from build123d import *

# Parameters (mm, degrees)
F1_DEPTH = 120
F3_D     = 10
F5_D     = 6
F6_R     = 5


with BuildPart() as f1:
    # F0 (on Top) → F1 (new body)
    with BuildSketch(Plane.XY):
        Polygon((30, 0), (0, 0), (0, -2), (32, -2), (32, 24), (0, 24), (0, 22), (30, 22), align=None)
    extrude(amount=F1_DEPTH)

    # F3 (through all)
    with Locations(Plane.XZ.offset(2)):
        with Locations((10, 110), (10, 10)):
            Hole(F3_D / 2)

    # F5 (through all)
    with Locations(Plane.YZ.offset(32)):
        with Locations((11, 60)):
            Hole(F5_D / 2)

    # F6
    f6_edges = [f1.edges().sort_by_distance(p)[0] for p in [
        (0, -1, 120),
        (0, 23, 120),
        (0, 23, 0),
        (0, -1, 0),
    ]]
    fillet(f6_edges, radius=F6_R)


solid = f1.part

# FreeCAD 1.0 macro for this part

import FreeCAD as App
import Part
import Sketcher
from FreeCAD import Vector


def edges_at(feature, points):
    """Names of the edges that pass closest to the given points."""
    edges = feature.Shape.Edges
    near = lambda p: min(range(len(edges)), key=lambda i: edges[i].distToShape(Part.Vertex(*p))[0])
    return sorted({f"Edge{near(p) + 1}" for p in points})

doc = App.newDocument("Part")
body = doc.addObject("PartDesign::Body", "Body")

# Sketch on XY plane
sketch1 = body.newObject("Sketcher::SketchObject", "Sketch")
sketch1.AttachmentSupport = (doc.getObject("XY_Plane"), [""])
sketch1.MapMode = "FlatFace"
sketch1.addGeometry(Part.LineSegment(Vector(30, 0, 0), Vector(0, 0, 0)), False)
sketch1.addGeometry(Part.LineSegment(Vector(0, 0, 0), Vector(0, -2, 0)), False)
sketch1.addGeometry(Part.LineSegment(Vector(0, -2, 0), Vector(32, -2, 0)), False)
sketch1.addGeometry(Part.LineSegment(Vector(32, -2, 0), Vector(32, 24, 0)), False)
sketch1.addGeometry(Part.LineSegment(Vector(32, 24, 0), Vector(0, 24, 0)), False)
sketch1.addGeometry(Part.LineSegment(Vector(0, 24, 0), Vector(0, 22, 0)), False)
sketch1.addGeometry(Part.LineSegment(Vector(0, 22, 0), Vector(30, 22, 0)), False)
sketch1.addGeometry(Part.LineSegment(Vector(30, 22, 0), Vector(30, 0, 0)), False)
sketch1.addConstraint(Sketcher.Constraint("Coincident", 0, 2, 1, 1))
sketch1.addConstraint(Sketcher.Constraint("Coincident", 1, 2, 2, 1))
sketch1.addConstraint(Sketcher.Constraint("Coincident", 2, 2, 3, 1))
sketch1.addConstraint(Sketcher.Constraint("Coincident", 3, 2, 4, 1))
sketch1.addConstraint(Sketcher.Constraint("Coincident", 4, 2, 5, 1))
sketch1.addConstraint(Sketcher.Constraint("Coincident", 5, 2, 6, 1))
sketch1.addConstraint(Sketcher.Constraint("Coincident", 6, 2, 7, 1))
sketch1.addConstraint(Sketcher.Constraint("Coincident", 7, 2, 0, 1))
sketch1.addConstraint(Sketcher.Constraint("Horizontal", 0))
sketch1.addConstraint(Sketcher.Constraint("Vertical", 1))
sketch1.addConstraint(Sketcher.Constraint("Horizontal", 2))
sketch1.addConstraint(Sketcher.Constraint("Vertical", 3))
sketch1.addConstraint(Sketcher.Constraint("Horizontal", 4))
sketch1.addConstraint(Sketcher.Constraint("Vertical", 5))
sketch1.addConstraint(Sketcher.Constraint("Horizontal", 6))
sketch1.addConstraint(Sketcher.Constraint("Vertical", 7))
sketch1.addConstraint(Sketcher.Constraint("Coincident", 0, 2, -1, 1))
sketch1.addConstraint(Sketcher.Constraint("PointOnObject", 4, 2, -2))
sketch1.addConstraint(Sketcher.Constraint("Equal", 1, 5))
sketch1.addConstraint(Sketcher.Constraint("DistanceX", 0, 2, 0, 1, 30.0))
sketch1.addConstraint(Sketcher.Constraint("DistanceX", 2, 1, 2, 2, 32.0))
sketch1.addConstraint(Sketcher.Constraint("DistanceY", 1, 2, 1, 1, 2.0))
sketch1.addConstraint(Sketcher.Constraint("DistanceY", 3, 1, 3, 2, 26.0))
pad1 = body.newObject("PartDesign::Pad", "Pad")
pad1.Profile = sketch1
pad1.Length = 120

# Sketch on XZ plane
sketch2 = body.newObject("Sketcher::SketchObject", "Sketch001")
sketch2.AttachmentSupport = (doc.getObject("XZ_Plane"), [""])
sketch2.MapMode = "FlatFace"
sketch2.AttachmentOffset = App.Placement(Vector(0, 0, 2), App.Rotation())
sketch2.addGeometry(Part.Circle(Vector(10, 110, 0), Vector(0, 0, 1), 5), False)
sketch2.addGeometry(Part.Circle(Vector(10, 10, 0), Vector(0, 0, 1), 5), False)
sketch2.addConstraint(Sketcher.Constraint("Equal", 0, 1))
sketch2.addConstraint(Sketcher.Constraint("Vertical", 0, 3, 1, 3))
sketch2.addConstraint(Sketcher.Constraint("Diameter", 0, 10.0))
sketch2.addConstraint(Sketcher.Constraint("DistanceX", -1, 1, 0, 3, 10.0))
sketch2.addConstraint(Sketcher.Constraint("DistanceY", -1, 1, 0, 3, 110.0))
sketch2.addConstraint(Sketcher.Constraint("DistanceY", -1, 1, 1, 3, 10.0))
doc.recompute()
hole = body.newObject("PartDesign::Hole", "Hole")
hole.Profile = sketch2
hole.ThreadType = "None"
hole.Diameter = 10
hole.DepthType = "ThroughAll"

# Sketch on YZ plane
sketch3 = body.newObject("Sketcher::SketchObject", "Sketch002")
sketch3.AttachmentSupport = (doc.getObject("YZ_Plane"), [""])
sketch3.MapMode = "FlatFace"
sketch3.AttachmentOffset = App.Placement(Vector(0, 0, 32), App.Rotation())
sketch3.addGeometry(Part.Circle(Vector(11, 60, 0), Vector(0, 0, 1), 3), False)
sketch3.addConstraint(Sketcher.Constraint("Diameter", 0, 6.0))
sketch3.addConstraint(Sketcher.Constraint("DistanceX", -1, 1, 0, 3, 11.0))
sketch3.addConstraint(Sketcher.Constraint("DistanceY", -1, 1, 0, 3, 60.0))
doc.recompute()
hole2 = body.newObject("PartDesign::Hole", "Hole001")
hole2.Profile = sketch3
hole2.ThreadType = "None"
hole2.Diameter = 6
hole2.DepthType = "ThroughAll"
doc.recompute()

fillet = body.newObject("PartDesign::Fillet", "Fillet")
fillet.Base = (hole2, edges_at(hole2, [
    (0, -1, 120),
    (0, 23, 120),
    (0, 23, 0),
    (0, -1, 0),
]))
fillet.Radius = 5

doc.recompute()
